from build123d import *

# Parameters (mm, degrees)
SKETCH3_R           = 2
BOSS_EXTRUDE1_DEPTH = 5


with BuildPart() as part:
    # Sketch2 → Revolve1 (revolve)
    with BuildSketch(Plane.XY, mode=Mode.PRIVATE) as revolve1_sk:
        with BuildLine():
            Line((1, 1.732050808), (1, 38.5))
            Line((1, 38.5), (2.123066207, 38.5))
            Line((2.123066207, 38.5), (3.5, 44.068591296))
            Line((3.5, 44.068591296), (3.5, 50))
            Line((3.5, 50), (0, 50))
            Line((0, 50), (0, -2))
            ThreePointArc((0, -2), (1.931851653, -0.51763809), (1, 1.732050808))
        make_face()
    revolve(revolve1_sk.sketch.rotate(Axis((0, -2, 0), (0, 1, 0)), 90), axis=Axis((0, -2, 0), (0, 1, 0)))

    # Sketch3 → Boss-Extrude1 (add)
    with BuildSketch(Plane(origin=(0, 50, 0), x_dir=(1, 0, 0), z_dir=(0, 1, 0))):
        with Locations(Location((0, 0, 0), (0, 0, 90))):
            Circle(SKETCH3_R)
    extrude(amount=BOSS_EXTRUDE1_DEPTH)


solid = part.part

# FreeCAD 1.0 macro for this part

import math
import FreeCAD as App
import Part
import Sketcher
from FreeCAD import Vector

doc = App.newDocument("Part")
body = doc.addObject("PartDesign::Body", "Body")

sketch1 = doc.addObject("Sketcher::SketchObject", "Sketch")
body.addObject(sketch1)
sketch1.AttachmentSupport = (doc.XY_Plane, [""])
sketch1.MapMode = "FlatFace"
sketch1.addGeometry(Part.LineSegment(Vector(1, 1.7, 0), Vector(1, 38.5, 0)), False)
sketch1.addGeometry(Part.LineSegment(Vector(1, 38.5, 0), Vector(2.1, 38.5, 0)), False)
sketch1.addGeometry(Part.LineSegment(Vector(2.1, 38.5, 0), Vector(3.5, 44.1, 0)), False)
sketch1.addGeometry(Part.LineSegment(Vector(3.5, 44.1, 0), Vector(3.5, 50, 0)), False)
sketch1.addGeometry(Part.LineSegment(Vector(3.5, 50, 0), Vector(0, 50, 0)), False)
sketch1.addGeometry(Part.LineSegment(Vector(0, 50, 0), Vector(0, -2, 0)), False)
sketch1.addGeometry(Part.ArcOfCircle(Part.Circle(Vector(0, 0, 0), Vector(0, 0, 1), 2), math.radians(-90), math.radians(60)), False)
sketch1.addConstraint(Sketcher.Constraint("Coincident", 0, 2, 1, 1))
sketch1.addConstraint(Sketcher.Constraint("Coincident", 1, 2, 2, 1))
sketch1.addConstraint(Sketcher.Constraint("Coincident", 2, 2, 3, 1))
sketch1.addConstraint(Sketcher.Constraint("Coincident", 3, 2, 4, 1))
sketch1.addConstraint(Sketcher.Constraint("Coincident", 4, 2, 5, 1))
sketch1.addConstraint(Sketcher.Constraint("Coincident", 5, 2, 6, 1))
sketch1.addConstraint(Sketcher.Constraint("Coincident", 6, 2, 0, 1))
sketch1.addConstraint(Sketcher.Constraint("Vertical", 0))
sketch1.addConstraint(Sketcher.Constraint("Horizontal", 1))
sketch1.addConstraint(Sketcher.Constraint("Vertical", 3))
sketch1.addConstraint(Sketcher.Constraint("Horizontal", 4))
sketch1.addConstraint(Sketcher.Constraint("Vertical", 5))
sketch1.addConstraint(Sketcher.Constraint("Coincident", 6, 3, -1, 1))
sketch1.addConstraint(Sketcher.Constraint("PointOnObject", 4, 2, -2))
sketch1.addConstraint(Sketcher.Constraint("Radius", 6, 2.0))
sketch1.addConstraint(Sketcher.Constraint("DistanceY", 5, 2, 5, 1, 52.0))
sketch1.addConstraint(Sketcher.Constraint("DistanceX", 4, 2, 4, 1, 3.5))
sketch1.addConstraint(Sketcher.Constraint("DistanceX", -1, 1, 0, 2, 1.0))
sketch1.addConstraint(Sketcher.Constraint("DistanceY", -1, 1, 0, 2, 38.5))
sketch1.addConstraint(Sketcher.Constraint("Distance", 2, 5.736302))
sketch1.addConstraint(Sketcher.Constraint("DistanceY", 3, 1, 3, 2, 5.931409))
revolution = doc.addObject("PartDesign::Revolution", "Revolution")
body.addObject(revolution)
revolution.Profile = sketch1
revolution.ReferenceAxis = (sketch1, ["V_Axis"])
revolution.Angle = 360

sketch2 = doc.addObject("Sketcher::SketchObject", "Sketch001")
body.addObject(sketch2)
sketch2.AttachmentSupport = (doc.XZ_Plane, [""])
sketch2.MapMode = "FlatFace"
sketch2.AttachmentOffset = App.Placement(Vector(0, 0, -50), App.Rotation())
sketch2.addGeometry(Part.Circle(Vector(0, 0, 0), Vector(0, 0, 1), 2), False)
sketch2.addConstraint(Sketcher.Constraint("Coincident", 0, 3, -1, 1))
sketch2.addConstraint(Sketcher.Constraint("Diameter", 0, 4.0))
pad1 = doc.addObject("PartDesign::Pad", "Pad")
body.addObject(pad1)
pad1.Profile = sketch2
pad1.Length = 5
pad1.Reversed = True

doc.recompute()
